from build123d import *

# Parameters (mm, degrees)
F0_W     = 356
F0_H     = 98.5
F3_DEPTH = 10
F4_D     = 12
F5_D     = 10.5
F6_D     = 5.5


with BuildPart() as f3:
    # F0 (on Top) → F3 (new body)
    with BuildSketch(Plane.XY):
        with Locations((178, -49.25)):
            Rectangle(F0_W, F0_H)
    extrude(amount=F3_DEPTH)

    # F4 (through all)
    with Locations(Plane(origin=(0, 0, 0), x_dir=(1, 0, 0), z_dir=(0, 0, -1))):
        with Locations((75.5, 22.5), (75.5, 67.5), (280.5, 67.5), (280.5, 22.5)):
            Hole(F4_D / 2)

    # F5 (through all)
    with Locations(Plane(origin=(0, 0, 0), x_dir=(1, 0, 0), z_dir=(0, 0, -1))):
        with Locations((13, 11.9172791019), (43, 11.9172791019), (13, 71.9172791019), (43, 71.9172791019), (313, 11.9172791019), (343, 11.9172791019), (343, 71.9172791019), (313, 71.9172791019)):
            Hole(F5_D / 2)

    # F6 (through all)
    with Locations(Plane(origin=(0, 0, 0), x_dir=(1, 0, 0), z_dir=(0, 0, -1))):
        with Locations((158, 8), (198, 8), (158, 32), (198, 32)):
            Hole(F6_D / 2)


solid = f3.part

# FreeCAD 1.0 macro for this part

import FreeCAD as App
import Part
import Sketcher


def add_polygon(sketch, points):
    """Adds a closed chain of lines whose ends are joined by coincident constraints."""
    first, n = sketch.GeometryCount, len(points)
    for a, b in zip(points, points[1:] + points[:1]):
        sketch.addGeometry(Part.LineSegment(App.Vector(*a, 0), App.Vector(*b, 0)), False)
    for i in range(n):
        sketch.addConstraint(Sketcher.Constraint("Coincident", first + i, 2, first + (i + 1) % n, 1))

doc = App.newDocument("Part")
params = doc.addObject("Spreadsheet::Sheet", "Params")
for row, (alias, value) in enumerate([
    ("sketch1_width", "356 mm"),
    ("sketch1_height", "98.5 mm"),
    ("pad1_length", "10 mm"),
    ("sketch2_diameter", "12 mm"),
    ("hole_diameter", "12 mm"),
    ("sketch3_diameter", "10.5 mm"),
    ("hole2_diameter", "10.5 mm"),
    ("sketch4_diameter", "5.5 mm"),
    ("hole3_diameter", "5.5 mm"),
], start=1):
    params.set(f"A{row}", alias)
    params.set(f"B{row}", "=" + value)
    params.setAlias(f"B{row}", alias)

body = doc.addObject("PartDesign::Body", "Body")

sketch1 = doc.addObject("Sketcher::SketchObject", "Sketch")
body.addObject(sketch1)
sketch1.AttachmentSupport = (doc.XY_Plane, [""])
sketch1.MapMode = "FlatFace"
add_polygon(sketch1, [(0, 0), (0, -98), (356, -98), (356, 0)])
sketch1.addConstraint(Sketcher.Constraint("Vertical", 0))
sketch1.addConstraint(Sketcher.Constraint("Horizontal", 1))
sketch1.addConstraint(Sketcher.Constraint("Vertical", 2))
sketch1.addConstraint(Sketcher.Constraint("Horizontal", 3))
sketch1.addConstraint(Sketcher.Constraint("Coincident", 3, 2, -1, 1))
sketch1.addConstraint(Sketcher.Constraint("DistanceX", 1, 1, 1, 2, 356.0))
sketch1.addConstraint(Sketcher.Constraint("DistanceY", 0, 2, 0, 1, 98.5))
sketch1.setExpression("Constraints[9]", "Params.sketch1_width")
sketch1.setExpression("Constraints[10]", "Params.sketch1_height")
pad1 = doc.addObject("PartDesign::Pad", "Pad")
body.addObject(pad1)
pad1.Profile = sketch1
pad1.setExpression("Length", "Params.pad1_length")

sketch2 = doc.addObject("Sketcher::SketchObject", "Sketch001")
body.addObject(sketch2)
sketch2.AttachmentSupport = (doc.XY_Plane, [""])
sketch2.MapMode = "FlatFace"
sketch2.addGeometry(Part.Circle(App.Vector(76, -22, 0), App.Vector(0, 0, 1), 6), False)
sketch2.addGeometry(Part.Circle(App.Vector(76, -68, 0), App.Vector(0, 0, 1), 6), False)
sketch2.addGeometry(Part.Circle(App.Vector(280, -68, 0), App.Vector(0, 0, 1), 6), False)
sketch2.addGeometry(Part.Circle(App.Vector(280, -22, 0), App.Vector(0, 0, 1), 6), False)
sketch2.addConstraint(Sketcher.Constraint("Equal", 0, 1))
sketch2.addConstraint(Sketcher.Constraint("Equal", 1, 2))
sketch2.addConstraint(Sketcher.Constraint("Equal", 2, 3))
sketch2.addConstraint(Sketcher.Constraint("Horizontal", 1, 3, 2, 3))
sketch2.addConstraint(Sketcher.Constraint("Horizontal", 0, 3, 3, 3))
sketch2.addConstraint(Sketcher.Constraint("Vertical", 0, 3, 1, 3))
sketch2.addConstraint(Sketcher.Constraint("Vertical", 2, 3, 3, 3))
sketch2.addConstraint(Sketcher.Constraint("Diameter", 0, 12.0))
sketch2.addConstraint(Sketcher.Constraint("DistanceY", 1, 3, 0, 3, 45.0))
sketch2.addConstraint(Sketcher.Constraint("DistanceX", 1, 3, 2, 3, 205.0))
sketch2.addConstraint(Sketcher.Constraint("DistanceX", -1, 1, 0, 3, 75.5))
sketch2.addConstraint(Sketcher.Constraint("DistanceY", 0, 3, -1, 1, 22.5))
sketch2.setExpression("Constraints[7]", "Params.sketch2_diameter")
doc.recompute()
hole = doc.addObject("PartDesign::Hole", "Hole")
body.addObject(hole)
hole.Profile = sketch2
hole.ThreadType = "None"
hole.setExpression("Diameter", "Params.hole_diameter")
hole.DepthType = "ThroughAll"
hole.Reversed = True

sketch3 = doc.addObject("Sketcher::SketchObject", "Sketch002")
body.addObject(sketch3)
sketch3.AttachmentSupport = (doc.XY_Plane, [""])
sketch3.MapMode = "FlatFace"
sketch3.addGeometry(Part.Circle(App.Vector(13, -12, 0), App.Vector(0, 0, 1), 5), False)
sketch3.addGeometry(Part.Circle(App.Vector(43, -12, 0), App.Vector(0, 0, 1), 5), False)
sketch3.addGeometry(Part.Circle(App.Vector(13, -72, 0), App.Vector(0, 0, 1), 5), False)
sketch3.addGeometry(Part.Circle(App.Vector(43, -72, 0), App.Vector(0, 0, 1), 5), False)
sketch3.addGeometry(Part.Circle(App.Vector(313, -12, 0), App.Vector(0, 0, 1), 5), False)
sketch3.addGeometry(Part.Circle(App.Vector(343, -12, 0), App.Vector(0, 0, 1), 5), False)
sketch3.addGeometry(Part.Circle(App.Vector(343, -72, 0), App.Vector(0, 0, 1), 5), False)
sketch3.addGeometry(Part.Circle(App.Vector(313, -72, 0), App.Vector(0, 0, 1), 5), False)
sketch3.addConstraint(Sketcher.Constraint("Equal", 0, 1))
sketch3.addConstraint(Sketcher.Constraint("Equal", 1, 2))
sketch3.addConstraint(Sketcher.Constraint("Equal", 2, 3))
sketch3.addConstraint(Sketcher.Constraint("Equal", 3, 4))
sketch3.addConstraint(Sketcher.Constraint("Equal", 4, 5))
sketch3.addConstraint(Sketcher.Constraint("Equal", 5, 6))
sketch3.addConstraint(Sketcher.Constraint("Equal", 6, 7))
sketch3.addConstraint(Sketcher.Constraint("Horizontal", 0, 3, 1, 3))
sketch3.addConstraint(Sketcher.Constraint("Horizontal", 2, 3, 3, 3))
sketch3.addConstraint(Sketcher.Constraint("Horizontal", 1, 3, 4, 3))
sketch3.addConstraint(Sketcher.Constraint("Horizontal", 4, 3, 5, 3))
sketch3.addConstraint(Sketcher.Constraint("Horizontal", 3, 3, 6, 3))
sketch3.addConstraint(Sketcher.Constraint("Horizontal", 6, 3, 7, 3))
sketch3.addConstraint(Sketcher.Constraint("Vertical", 0, 3, 2, 3))
sketch3.addConstraint(Sketcher.Constraint("Vertical", 1, 3, 3, 3))
sketch3.addConstraint(Sketcher.Constraint("Vertical", 5, 3, 6, 3))
sketch3.addConstraint(Sketcher.Constraint("Vertical", 4, 3, 7, 3))
sketch3.addConstraint(Sketcher.Constraint("Diameter", 0, 10.5))
sketch3.addConstraint(Sketcher.Constraint("DistanceX", -1, 1, 0, 3, 13.0))
sketch3.addConstraint(Sketcher.Constraint("DistanceX", -1, 1, 1, 3, 43.0))
sketch3.addConstraint(Sketcher.Constraint("DistanceX", -1, 1, 4, 3, 313.0))
sketch3.addConstraint(Sketcher.Constraint("DistanceX", -1, 1, 5, 3, 343.0))
sketch3.addConstraint(Sketcher.Constraint("DistanceY", 2, 3, 0, 3, 60.0))
sketch3.addConstraint(Sketcher.Constraint("DistanceY", 0, 3, -1, 1, 11.917279))
sketch3.setExpression("Constraints[17]", "Params.sketch3_diameter")
doc.recompute()
hole2 = doc.addObject("PartDesign::Hole", "Hole001")
body.addObject(hole2)
hole2.Profile = sketch3
hole2.ThreadType = "None"
hole2.setExpression("Diameter", "Params.hole2_diameter")
hole2.DepthType = "ThroughAll"
hole2.Reversed = True

sketch4 = doc.addObject("Sketcher::SketchObject", "Sketch003")
body.addObject(sketch4)
sketch4.AttachmentSupport = (doc.XY_Plane, [""])
sketch4.MapMode = "FlatFace"
sketch4.addGeometry(Part.Circle(App.Vector(158, -8, 0), App.Vector(0, 0, 1), 2.8), False)
sketch4.addGeometry(Part.Circle(App.Vector(198, -8, 0), App.Vector(0, 0, 1), 2.8), False)
sketch4.addGeometry(Part.Circle(App.Vector(158, -32, 0), App.Vector(0, 0, 1), 2.8), False)
sketch4.addGeometry(Part.Circle(App.Vector(198, -32, 0), App.Vector(0, 0, 1), 2.8), False)
sketch4.addConstraint(Sketcher.Constraint("Equal", 0, 1))
sketch4.addConstraint(Sketcher.Constraint("Equal", 1, 2))
sketch4.addConstraint(Sketcher.Constraint("Equal", 2, 3))
sketch4.addConstraint(Sketcher.Constraint("Horizontal", 0, 3, 1, 3))
sketch4.addConstraint(Sketcher.Constraint("Horizontal", 2, 3, 3, 3))
sketch4.addConstraint(Sketcher.Constraint("Vertical", 0, 3, 2, 3))
sketch4.addConstraint(Sketcher.Constraint("Vertical", 1, 3, 3, 3))
sketch4.addConstraint(Sketcher.Constraint("Diameter", 0, 5.5))
sketch4.addConstraint(Sketcher.Constraint("DistanceX", -1, 1, 0, 3, 158.0))
sketch4.addConstraint(Sketcher.Constraint("DistanceY", 0, 3, -1, 1, 8.0))
sketch4.addConstraint(Sketcher.Constraint("DistanceX", -1, 1, 1, 3, 198.0))
sketch4.addConstraint(Sketcher.Constraint("DistanceY", 2, 3, -1, 1, 32.0))
sketch4.setExpression("Constraints[7]", "Params.sketch4_diameter")
doc.recompute()
hole3 = doc.addObject("PartDesign::Hole", "Hole002")
body.addObject(hole3)
hole3.Profile = sketch4
hole3.ThreadType = "None"
hole3.setExpression("Diameter", "Params.hole3_diameter")
hole3.DepthType = "ThroughAll"
hole3.Reversed = True

doc.recompute()
